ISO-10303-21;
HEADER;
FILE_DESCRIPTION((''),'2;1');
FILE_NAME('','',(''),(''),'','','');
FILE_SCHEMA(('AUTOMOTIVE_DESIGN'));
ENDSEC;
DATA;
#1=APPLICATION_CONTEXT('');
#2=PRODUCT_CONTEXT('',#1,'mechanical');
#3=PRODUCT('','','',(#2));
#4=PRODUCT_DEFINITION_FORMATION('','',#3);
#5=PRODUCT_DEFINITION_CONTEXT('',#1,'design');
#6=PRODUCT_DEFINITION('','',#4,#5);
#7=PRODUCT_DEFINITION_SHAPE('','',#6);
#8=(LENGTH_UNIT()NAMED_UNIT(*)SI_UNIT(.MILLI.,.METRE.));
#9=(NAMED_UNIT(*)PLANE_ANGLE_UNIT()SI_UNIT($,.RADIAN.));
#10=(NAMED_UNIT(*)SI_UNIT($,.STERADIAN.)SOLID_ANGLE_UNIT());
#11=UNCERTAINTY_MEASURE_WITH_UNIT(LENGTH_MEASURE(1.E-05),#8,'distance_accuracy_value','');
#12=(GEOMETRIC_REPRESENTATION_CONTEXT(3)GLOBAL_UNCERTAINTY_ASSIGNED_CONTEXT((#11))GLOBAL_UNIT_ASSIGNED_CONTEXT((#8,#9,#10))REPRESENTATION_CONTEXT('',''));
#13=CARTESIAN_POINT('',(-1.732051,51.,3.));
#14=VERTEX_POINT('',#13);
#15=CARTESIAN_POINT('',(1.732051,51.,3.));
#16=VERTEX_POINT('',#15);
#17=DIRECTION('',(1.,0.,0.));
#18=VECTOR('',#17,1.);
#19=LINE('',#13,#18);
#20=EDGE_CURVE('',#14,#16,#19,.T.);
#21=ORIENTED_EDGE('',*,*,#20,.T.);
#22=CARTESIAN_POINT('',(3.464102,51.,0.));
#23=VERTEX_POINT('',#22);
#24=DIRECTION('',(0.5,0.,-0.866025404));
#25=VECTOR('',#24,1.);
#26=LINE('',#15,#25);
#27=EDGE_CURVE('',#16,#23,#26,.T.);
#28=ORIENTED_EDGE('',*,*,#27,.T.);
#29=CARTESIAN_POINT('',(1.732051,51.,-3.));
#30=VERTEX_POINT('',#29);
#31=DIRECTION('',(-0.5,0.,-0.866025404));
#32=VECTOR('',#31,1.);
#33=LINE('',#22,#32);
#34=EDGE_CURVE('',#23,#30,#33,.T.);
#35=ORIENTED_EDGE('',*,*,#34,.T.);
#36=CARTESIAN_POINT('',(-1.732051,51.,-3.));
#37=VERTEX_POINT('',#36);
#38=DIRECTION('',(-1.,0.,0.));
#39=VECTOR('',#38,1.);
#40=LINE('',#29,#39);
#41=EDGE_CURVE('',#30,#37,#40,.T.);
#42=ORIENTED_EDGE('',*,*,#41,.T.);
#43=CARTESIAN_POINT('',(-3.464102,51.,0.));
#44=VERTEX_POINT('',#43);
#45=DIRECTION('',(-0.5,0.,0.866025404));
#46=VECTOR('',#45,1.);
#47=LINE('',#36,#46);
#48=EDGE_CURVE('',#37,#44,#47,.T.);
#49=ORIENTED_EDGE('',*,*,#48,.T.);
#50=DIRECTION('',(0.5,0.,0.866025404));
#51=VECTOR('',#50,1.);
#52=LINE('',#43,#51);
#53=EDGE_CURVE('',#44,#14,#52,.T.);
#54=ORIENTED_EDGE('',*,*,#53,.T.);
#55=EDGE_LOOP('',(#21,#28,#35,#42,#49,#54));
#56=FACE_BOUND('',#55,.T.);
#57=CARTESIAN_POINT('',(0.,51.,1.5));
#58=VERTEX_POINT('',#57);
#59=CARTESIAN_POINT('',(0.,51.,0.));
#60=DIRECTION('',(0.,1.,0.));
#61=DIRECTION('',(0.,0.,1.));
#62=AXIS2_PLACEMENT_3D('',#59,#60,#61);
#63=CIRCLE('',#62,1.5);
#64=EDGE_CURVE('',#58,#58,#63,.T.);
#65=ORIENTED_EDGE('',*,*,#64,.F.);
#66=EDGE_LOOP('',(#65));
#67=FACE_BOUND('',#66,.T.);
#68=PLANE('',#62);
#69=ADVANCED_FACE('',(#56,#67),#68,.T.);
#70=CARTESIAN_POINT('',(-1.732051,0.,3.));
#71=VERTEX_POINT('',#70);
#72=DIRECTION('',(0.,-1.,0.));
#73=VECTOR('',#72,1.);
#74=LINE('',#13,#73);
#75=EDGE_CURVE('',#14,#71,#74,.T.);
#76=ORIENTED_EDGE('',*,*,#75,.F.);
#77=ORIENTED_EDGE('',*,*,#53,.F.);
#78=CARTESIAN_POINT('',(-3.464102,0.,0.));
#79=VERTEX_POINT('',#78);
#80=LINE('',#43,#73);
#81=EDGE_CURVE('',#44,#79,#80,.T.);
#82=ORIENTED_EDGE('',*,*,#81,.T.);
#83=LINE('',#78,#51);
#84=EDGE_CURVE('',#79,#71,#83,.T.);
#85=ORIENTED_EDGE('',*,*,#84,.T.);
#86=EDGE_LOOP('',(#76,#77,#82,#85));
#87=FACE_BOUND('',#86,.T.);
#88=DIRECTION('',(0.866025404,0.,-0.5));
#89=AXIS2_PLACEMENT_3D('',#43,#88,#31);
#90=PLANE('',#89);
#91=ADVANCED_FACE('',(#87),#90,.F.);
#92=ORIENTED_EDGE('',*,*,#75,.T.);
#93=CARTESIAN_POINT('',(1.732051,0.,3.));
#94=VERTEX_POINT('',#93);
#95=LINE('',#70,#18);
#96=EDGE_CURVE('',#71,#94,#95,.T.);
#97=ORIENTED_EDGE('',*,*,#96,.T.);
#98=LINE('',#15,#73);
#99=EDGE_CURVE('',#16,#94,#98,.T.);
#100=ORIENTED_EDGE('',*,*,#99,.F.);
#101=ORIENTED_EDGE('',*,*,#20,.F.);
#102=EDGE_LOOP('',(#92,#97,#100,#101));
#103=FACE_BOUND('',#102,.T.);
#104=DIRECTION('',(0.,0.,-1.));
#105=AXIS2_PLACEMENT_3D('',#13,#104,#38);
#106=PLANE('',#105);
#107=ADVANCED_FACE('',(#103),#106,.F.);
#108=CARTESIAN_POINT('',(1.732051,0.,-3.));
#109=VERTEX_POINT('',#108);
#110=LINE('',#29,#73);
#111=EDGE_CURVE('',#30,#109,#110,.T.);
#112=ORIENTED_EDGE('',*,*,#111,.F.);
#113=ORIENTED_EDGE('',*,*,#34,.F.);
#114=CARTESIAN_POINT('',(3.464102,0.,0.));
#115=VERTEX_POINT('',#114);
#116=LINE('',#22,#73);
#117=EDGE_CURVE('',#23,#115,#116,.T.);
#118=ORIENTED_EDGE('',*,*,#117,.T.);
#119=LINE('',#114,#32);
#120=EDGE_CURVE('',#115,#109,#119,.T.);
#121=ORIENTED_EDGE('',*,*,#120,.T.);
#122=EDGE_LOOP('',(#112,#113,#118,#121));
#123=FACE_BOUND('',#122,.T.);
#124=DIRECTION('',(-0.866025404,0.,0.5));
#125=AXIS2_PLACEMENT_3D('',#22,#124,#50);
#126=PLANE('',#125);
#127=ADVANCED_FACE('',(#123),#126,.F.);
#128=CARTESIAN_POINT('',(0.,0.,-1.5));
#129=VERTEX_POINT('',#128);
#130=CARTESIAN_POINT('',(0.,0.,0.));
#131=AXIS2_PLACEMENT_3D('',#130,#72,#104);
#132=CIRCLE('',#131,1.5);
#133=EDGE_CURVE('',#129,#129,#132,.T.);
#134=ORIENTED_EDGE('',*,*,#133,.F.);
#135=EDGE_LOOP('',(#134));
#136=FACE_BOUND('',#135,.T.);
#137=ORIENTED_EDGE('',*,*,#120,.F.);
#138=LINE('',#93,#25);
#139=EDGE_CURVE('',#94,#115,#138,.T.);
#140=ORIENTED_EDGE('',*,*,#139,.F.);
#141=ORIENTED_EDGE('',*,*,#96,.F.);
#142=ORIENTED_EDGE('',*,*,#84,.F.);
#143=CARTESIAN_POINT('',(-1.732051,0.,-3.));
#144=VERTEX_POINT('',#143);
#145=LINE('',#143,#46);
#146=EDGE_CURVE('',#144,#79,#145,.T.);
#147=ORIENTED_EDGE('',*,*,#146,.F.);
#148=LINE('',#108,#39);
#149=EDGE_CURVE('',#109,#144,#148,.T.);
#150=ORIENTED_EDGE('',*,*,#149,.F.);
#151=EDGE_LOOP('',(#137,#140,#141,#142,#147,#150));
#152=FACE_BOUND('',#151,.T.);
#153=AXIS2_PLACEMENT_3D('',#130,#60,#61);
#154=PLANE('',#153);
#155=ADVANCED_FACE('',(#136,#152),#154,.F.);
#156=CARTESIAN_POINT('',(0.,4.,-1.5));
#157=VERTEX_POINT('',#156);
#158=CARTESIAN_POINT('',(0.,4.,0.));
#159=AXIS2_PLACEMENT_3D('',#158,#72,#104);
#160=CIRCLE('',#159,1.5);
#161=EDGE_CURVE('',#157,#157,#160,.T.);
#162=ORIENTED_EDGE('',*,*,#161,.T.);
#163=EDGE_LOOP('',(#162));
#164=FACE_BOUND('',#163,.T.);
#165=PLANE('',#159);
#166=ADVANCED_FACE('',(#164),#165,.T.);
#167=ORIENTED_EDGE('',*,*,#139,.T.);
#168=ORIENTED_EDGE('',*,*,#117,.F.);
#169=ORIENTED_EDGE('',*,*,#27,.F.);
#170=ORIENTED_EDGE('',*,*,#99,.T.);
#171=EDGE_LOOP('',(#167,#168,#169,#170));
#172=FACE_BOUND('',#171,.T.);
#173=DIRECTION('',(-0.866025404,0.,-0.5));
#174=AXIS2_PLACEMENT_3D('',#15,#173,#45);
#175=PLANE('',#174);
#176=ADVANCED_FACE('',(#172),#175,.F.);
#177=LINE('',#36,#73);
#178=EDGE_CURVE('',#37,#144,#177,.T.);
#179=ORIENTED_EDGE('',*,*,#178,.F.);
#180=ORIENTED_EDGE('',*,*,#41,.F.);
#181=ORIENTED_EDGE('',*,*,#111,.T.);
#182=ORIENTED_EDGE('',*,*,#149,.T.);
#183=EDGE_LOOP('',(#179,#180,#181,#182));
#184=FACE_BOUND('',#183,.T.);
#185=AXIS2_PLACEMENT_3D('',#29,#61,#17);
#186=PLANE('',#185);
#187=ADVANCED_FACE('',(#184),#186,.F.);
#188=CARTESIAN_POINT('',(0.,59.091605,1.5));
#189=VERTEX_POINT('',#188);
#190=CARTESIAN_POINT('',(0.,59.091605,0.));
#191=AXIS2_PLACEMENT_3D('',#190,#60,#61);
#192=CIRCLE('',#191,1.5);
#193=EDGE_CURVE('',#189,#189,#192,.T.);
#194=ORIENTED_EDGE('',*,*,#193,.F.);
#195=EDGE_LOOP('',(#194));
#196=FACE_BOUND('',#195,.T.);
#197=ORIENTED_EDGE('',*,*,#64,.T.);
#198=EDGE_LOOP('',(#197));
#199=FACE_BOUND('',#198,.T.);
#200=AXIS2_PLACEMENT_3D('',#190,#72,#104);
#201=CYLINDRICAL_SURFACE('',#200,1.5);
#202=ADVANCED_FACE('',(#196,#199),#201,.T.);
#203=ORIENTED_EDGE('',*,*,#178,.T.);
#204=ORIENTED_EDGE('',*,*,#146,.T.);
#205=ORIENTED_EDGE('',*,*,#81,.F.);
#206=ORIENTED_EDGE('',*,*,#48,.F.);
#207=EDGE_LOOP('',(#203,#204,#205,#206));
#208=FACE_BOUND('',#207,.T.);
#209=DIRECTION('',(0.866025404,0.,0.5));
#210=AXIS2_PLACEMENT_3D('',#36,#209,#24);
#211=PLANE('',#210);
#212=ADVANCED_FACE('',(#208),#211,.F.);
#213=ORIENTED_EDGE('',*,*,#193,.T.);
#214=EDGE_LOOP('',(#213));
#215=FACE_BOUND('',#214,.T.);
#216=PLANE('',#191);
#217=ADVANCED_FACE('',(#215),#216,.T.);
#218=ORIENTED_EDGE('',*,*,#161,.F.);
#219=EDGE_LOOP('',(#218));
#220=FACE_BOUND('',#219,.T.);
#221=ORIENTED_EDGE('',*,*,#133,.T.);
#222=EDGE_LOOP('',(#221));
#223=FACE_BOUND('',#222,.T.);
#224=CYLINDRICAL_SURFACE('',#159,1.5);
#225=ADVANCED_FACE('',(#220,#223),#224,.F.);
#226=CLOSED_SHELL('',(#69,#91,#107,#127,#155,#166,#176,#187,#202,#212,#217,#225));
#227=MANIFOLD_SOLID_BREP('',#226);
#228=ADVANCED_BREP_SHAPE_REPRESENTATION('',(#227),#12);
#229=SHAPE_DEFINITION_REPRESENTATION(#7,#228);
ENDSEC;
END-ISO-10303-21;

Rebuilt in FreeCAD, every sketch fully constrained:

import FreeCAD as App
import Part
import Sketcher
from FreeCAD import Vector
Q = App.Units.Quantity

doc = App.newDocument("Part")
body = doc.addObject("PartDesign::Body", "Body")

# Sketch on XZ plane
sketch1 = body.newObject("Sketcher::SketchObject", "Sketch")
sketch1.AttachmentSupport = (doc.getObject("XZ_Plane"), [""])
sketch1.MapMode = "FlatFace"
sketch1.addGeometry([
    Part.LineSegment(Vector(-3.5, 0, 0), Vector(-1.7, 3, 0)),  # 0
    Part.LineSegment(Vector(-1.7, 3, 0), Vector(1.7, 3, 0)),  # 1
    Part.LineSegment(Vector(1.7, 3, 0), Vector(3.5, 0, 0)),  # 2
    Part.LineSegment(Vector(3.5, 0, 0), Vector(1.7, -3, 0)),  # 3
    Part.LineSegment(Vector(1.7, -3, 0), Vector(-1.7, -3, 0)),  # 4
    Part.LineSegment(Vector(-1.7, -3, 0), Vector(-3.5, 0, 0)),  # 5
], False)
sketch1.addConstraint([
    Sketcher.Constraint("Coincident", 0, 2, 1, 1),
    Sketcher.Constraint("Coincident", 1, 2, 2, 1),
    Sketcher.Constraint("Coincident", 2, 2, 3, 1),
    Sketcher.Constraint("Coincident", 3, 2, 4, 1),
    Sketcher.Constraint("Coincident", 4, 2, 5, 1),
    Sketcher.Constraint("Coincident", 5, 2, 0, 1),
    Sketcher.Constraint("Horizontal", 1),
    Sketcher.Constraint("Horizontal", 4),
    Sketcher.Constraint("Symmetric", 0, 2, 3, 2, -1, 1),
    Sketcher.Constraint("Symmetric", 2, 2, 5, 2, -1, 1),
    Sketcher.Constraint("PointOnObject", 2, 2, -1),
    Sketcher.Constraint("Parallel", 2, 5),
    Sketcher.Constraint("Vertical", 1, 2, 3, 2),
    Sketcher.Constraint("Angle", 0, Q("60 deg")),
    Sketcher.Constraint("DistanceY", -1, 1, 0, 2, 3.0),
    Sketcher.Constraint("DistanceX", 1, 1, 1, 2, 3.464102),
])
pad1 = body.newObject("PartDesign::Pad", "Pad")
pad1.Profile = sketch1
pad1.Length = 51
pad1.Reversed = True

# Sketch on XZ plane
sketch2 = body.newObject("Sketcher::SketchObject", "Sketch001")
sketch2.AttachmentSupport = (doc.getObject("XZ_Plane"), [""])
sketch2.MapMode = "FlatFace"
sketch2.AttachmentOffset = App.Placement(Vector(0, 0, -51), App.Rotation())
sketch2.addGeometry(Part.Circle(Vector(0, 0, 0), Vector(0, 0, 1), 1.5), False)
sketch2.addConstraint([
    Sketcher.Constraint("Coincident", 0, 3, -1, 1),
    Sketcher.Constraint("Diameter", 0, 3.0),
])
pad2 = body.newObject("PartDesign::Pad", "Pad001")
pad2.Profile = sketch2
pad2.Length = 8.091605
pad2.Reversed = True

# Sketch on XZ plane
sketch3 = body.newObject("Sketcher::SketchObject", "Sketch002")
sketch3.AttachmentSupport = (doc.getObject("XZ_Plane"), [""])
sketch3.MapMode = "FlatFace"
sketch3.addGeometry(Part.Circle(Vector(0, 0, 0), Vector(0, 0, 1), 1.5), False)
sketch3.addConstraint([
    Sketcher.Constraint("Coincident", 0, 3, -1, 1),
    Sketcher.Constraint("Diameter", 0, 3.0),
])
pocket1 = body.newObject("PartDesign::Pocket", "Pocket")
pocket1.Profile = sketch3
pocket1.Length = 4

doc.recompute()
